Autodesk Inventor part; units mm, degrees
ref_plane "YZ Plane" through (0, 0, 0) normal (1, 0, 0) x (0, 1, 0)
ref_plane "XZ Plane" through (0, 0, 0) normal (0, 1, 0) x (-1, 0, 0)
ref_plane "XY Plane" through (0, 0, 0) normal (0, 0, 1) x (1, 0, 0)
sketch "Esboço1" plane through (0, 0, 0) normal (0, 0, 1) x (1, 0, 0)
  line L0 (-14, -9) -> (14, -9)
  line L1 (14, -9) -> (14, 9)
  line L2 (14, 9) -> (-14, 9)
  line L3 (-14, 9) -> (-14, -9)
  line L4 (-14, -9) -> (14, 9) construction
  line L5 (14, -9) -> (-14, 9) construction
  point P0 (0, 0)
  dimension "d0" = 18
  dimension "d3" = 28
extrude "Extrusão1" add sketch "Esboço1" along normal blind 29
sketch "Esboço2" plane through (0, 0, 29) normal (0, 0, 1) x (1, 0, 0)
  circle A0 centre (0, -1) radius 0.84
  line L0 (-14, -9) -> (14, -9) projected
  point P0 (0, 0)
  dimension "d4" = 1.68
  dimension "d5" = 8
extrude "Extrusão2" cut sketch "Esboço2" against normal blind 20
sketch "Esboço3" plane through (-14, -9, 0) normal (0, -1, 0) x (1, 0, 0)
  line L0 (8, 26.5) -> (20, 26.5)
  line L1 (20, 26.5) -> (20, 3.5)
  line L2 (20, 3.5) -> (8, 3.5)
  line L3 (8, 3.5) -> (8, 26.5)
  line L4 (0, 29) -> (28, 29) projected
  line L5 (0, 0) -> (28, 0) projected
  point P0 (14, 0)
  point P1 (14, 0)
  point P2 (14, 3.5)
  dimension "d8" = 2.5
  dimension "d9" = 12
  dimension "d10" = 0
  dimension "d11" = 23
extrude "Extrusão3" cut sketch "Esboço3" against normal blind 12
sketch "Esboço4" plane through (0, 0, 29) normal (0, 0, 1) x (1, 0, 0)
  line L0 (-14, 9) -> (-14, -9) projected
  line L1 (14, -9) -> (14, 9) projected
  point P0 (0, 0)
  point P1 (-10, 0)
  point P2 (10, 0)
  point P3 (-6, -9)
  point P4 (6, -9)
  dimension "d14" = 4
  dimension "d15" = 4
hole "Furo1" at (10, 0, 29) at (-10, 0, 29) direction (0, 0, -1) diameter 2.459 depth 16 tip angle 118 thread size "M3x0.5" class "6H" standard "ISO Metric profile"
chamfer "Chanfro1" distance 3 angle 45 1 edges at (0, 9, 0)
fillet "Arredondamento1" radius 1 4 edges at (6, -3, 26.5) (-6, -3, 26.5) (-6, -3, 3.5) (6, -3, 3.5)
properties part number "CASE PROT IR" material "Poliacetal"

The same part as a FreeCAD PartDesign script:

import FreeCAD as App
import Part
import Sketcher
from FreeCAD import Vector


def edges_at(feature, points):
    """Names of the edges that pass closest to the given points."""
    edges = feature.Shape.Edges
    near = lambda p: min(range(len(edges)), key=lambda i: edges[i].distToShape(Part.Vertex(*p))[0])
    return sorted({f"Edge{near(p) + 1}" for p in points})


def add_polygon(sketch, points):
    """Adds a closed chain of lines whose ends are joined by coincident constraints."""
    first, n = sketch.GeometryCount, len(points)
    for a, b in zip(points, points[1:] + points[:1]):
        sketch.addGeometry(Part.LineSegment(App.Vector(*a, 0), App.Vector(*b, 0)), False)
    for i in range(n):
        sketch.addConstraint(Sketcher.Constraint("Coincident", first + i, 2, first + (i + 1) % n, 1))

doc = App.newDocument("Part")
body = doc.addObject("PartDesign::Body", "Body")

# Sketch on XY plane
sketch1 = doc.addObject("Sketcher::SketchObject", "Sketch")
body.addObject(sketch1)
sketch1.AttachmentSupport = (doc.XY_Plane, [""])
sketch1.MapMode = "FlatFace"
add_polygon(sketch1, [(-14, 9), (-14, -9), (14, -9), (14, 9)])  # lines 0-3
sketch1.addConstraint(Sketcher.Constraint("Vertical", 0))
sketch1.addConstraint(Sketcher.Constraint("Horizontal", 1))
sketch1.addConstraint(Sketcher.Constraint("Vertical", 2))
sketch1.addConstraint(Sketcher.Constraint("Horizontal", 3))
sketch1.addConstraint(Sketcher.Constraint("Symmetric", 0, 2, 2, 2, -1, 1))
sketch1.addConstraint(Sketcher.Constraint("DistanceX", 1, 1, 1, 2, 28.0))
sketch1.addConstraint(Sketcher.Constraint("DistanceY", 0, 2, 0, 1, 18.0))
pad1 = doc.addObject("PartDesign::Pad", "Pad")
body.addObject(pad1)
pad1.Profile = sketch1
pad1.Length = 29

# Sketch on XY plane
sketch2 = doc.addObject("Sketcher::SketchObject", "Sketch001")
body.addObject(sketch2)
sketch2.AttachmentSupport = (doc.XY_Plane, [""])
sketch2.MapMode = "FlatFace"
sketch2.AttachmentOffset = App.Placement(Vector(0, 0, 29), App.Rotation())
sketch2.addGeometry(Part.Circle(Vector(0, -1, 0), Vector(0, 0, 1), 0.84), False)
sketch2.addConstraint(Sketcher.Constraint("PointOnObject", 0, 3, -2))
sketch2.addConstraint(Sketcher.Constraint("Diameter", 0, 1.68))
sketch2.addConstraint(Sketcher.Constraint("DistanceY", 0, 3, -1, 1, 1.0))
pocket1 = doc.addObject("PartDesign::Pocket", "Pocket")
body.addObject(pocket1)
pocket1.Profile = sketch2
pocket1.Length = 20

# Sketch on XZ plane
sketch3 = doc.addObject("Sketcher::SketchObject", "Sketch002")
body.addObject(sketch3)
sketch3.AttachmentSupport = (doc.XZ_Plane, [""])
sketch3.MapMode = "FlatFace"
sketch3.AttachmentOffset = App.Placement(Vector(0, 0, 9), App.Rotation())
add_polygon(sketch3, [(6, 26.5), (-6, 26.5), (-6, 3.5), (6, 3.5)])  # lines 0-3
sketch3.addConstraint(Sketcher.Constraint("Horizontal", 0))
sketch3.addConstraint(Sketcher.Constraint("Vertical", 1))
sketch3.addConstraint(Sketcher.Constraint("Horizontal", 2))
sketch3.addConstraint(Sketcher.Constraint("Vertical", 3))
sketch3.addConstraint(Sketcher.Constraint("DistanceX", 0, 2, 0, 1, 12.0))
sketch3.addConstraint(Sketcher.Constraint("DistanceY", 1, 2, 1, 1, 23.0))
sketch3.addConstraint(Sketcher.Constraint("DistanceX", 0, 2, -1, 1, 6.0))
sketch3.addConstraint(Sketcher.Constraint("DistanceY", -1, 1, 0, 2, 26.5))
pocket2 = doc.addObject("PartDesign::Pocket", "Pocket001")
body.addObject(pocket2)
pocket2.Profile = sketch3
pocket2.Length = 12

# Sketch on XY plane
sketch4 = doc.addObject("Sketcher::SketchObject", "Sketch003")
body.addObject(sketch4)
sketch4.AttachmentSupport = (doc.XY_Plane, [""])
sketch4.MapMode = "FlatFace"
sketch4.AttachmentOffset = App.Placement(Vector(0, 0, 29), App.Rotation())
sketch4.addGeometry(Part.Circle(Vector(10, 0, 0), Vector(0, 0, 1), 1.2295), False)
sketch4.addGeometry(Part.Circle(Vector(-10, 0, 0), Vector(0, 0, 1), 1.2295), False)
sketch4.addConstraint(Sketcher.Constraint("Equal", 0, 1))
sketch4.addConstraint(Sketcher.Constraint("Symmetric", 0, 3, 1, 3, -1, 1))
sketch4.addConstraint(Sketcher.Constraint("PointOnObject", 0, 3, -1))
sketch4.addConstraint(Sketcher.Constraint("Diameter", 0, 2.459))
sketch4.addConstraint(Sketcher.Constraint("DistanceX", -1, 1, 0, 3, 10.0))
doc.recompute()
hole = doc.addObject("PartDesign::Hole", "Hole")
body.addObject(hole)
hole.Profile = sketch4
hole.ThreadType = "None"
hole.Diameter = 2.459
hole.DepthType = "Dimension"
hole.Depth = 16
hole.DrillPoint = "Angled"
hole.DrillPointAngle = 118
doc.recompute()

chamfer = doc.addObject("PartDesign::Chamfer", "Chamfer")
body.addObject(chamfer)
chamfer.Base = (hole, edges_at(hole, [(0, 9, 0)]))
chamfer.Size = 3
doc.recompute()

fillet = doc.addObject("PartDesign::Fillet", "Fillet")
body.addObject(fillet)
fillet.Base = (chamfer, edges_at(chamfer, [
    (6, -3, 26.5),
    (-6, -3, 26.5),
    (-6, -3, 3.5),
    (6, -3, 3.5),
]))
fillet.Radius = 1

doc.recompute()
